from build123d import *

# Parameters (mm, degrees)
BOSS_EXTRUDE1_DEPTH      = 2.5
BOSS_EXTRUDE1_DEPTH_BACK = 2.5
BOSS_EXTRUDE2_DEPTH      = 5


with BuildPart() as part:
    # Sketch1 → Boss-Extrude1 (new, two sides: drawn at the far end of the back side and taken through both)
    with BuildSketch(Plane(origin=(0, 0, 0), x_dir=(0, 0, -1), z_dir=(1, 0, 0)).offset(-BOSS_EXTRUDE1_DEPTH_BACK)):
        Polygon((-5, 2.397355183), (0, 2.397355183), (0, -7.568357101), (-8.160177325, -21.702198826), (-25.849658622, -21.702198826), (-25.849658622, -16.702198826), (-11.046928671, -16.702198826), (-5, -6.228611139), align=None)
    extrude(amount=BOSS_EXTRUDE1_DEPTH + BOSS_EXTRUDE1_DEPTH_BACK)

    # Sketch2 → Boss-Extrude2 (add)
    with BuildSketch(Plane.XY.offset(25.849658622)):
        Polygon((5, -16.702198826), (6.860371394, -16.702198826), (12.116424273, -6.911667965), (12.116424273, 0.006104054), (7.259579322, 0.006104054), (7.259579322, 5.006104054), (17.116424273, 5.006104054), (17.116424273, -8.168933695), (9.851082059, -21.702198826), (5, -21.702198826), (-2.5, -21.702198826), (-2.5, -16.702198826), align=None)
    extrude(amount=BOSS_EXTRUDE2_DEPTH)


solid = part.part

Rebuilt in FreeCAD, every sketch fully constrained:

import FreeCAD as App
import Part
import Sketcher

V = App.Vector
Q = App.Units.Quantity

doc = App.newDocument("Part")
body = doc.addObject("PartDesign::Body", "Body")

sketch1 = body.newObject("Sketcher::SketchObject", "Sketch")
sketch1.AttachmentSupport = (doc.getObject("YZ_Plane"), [""])
sketch1.MapMode = "FlatFace"
sketch1.addGeometry([
    Part.LineSegment(V(2.397355, 0, 0), V(2.397355, 5, 0)),
    Part.LineSegment(V(2.397355, 5, 0), V(-6.228611, 5, 0)),
    Part.LineSegment(V(-6.228611, 5, 0), V(-16.702199, 11.046929, 0)),
    Part.LineSegment(V(-16.702199, 11.046929, 0), V(-16.702199, 25.849659, 0)),
    Part.LineSegment(V(-16.702199, 25.849659, 0), V(-21.702199, 25.849659, 0)),
    Part.LineSegment(V(-21.702199, 25.849659, 0), V(-21.702199, 8.160177, 0)),
    Part.LineSegment(V(-21.702199, 8.160177, 0), V(-7.568357, 0, 0)),
    Part.LineSegment(V(-7.568357, 0, 0), V(2.397355, 0, 0)),
], False)
sketch1.addConstraint([
    Sketcher.Constraint("Coincident", 0, 2, 1, 1),
    Sketcher.Constraint("Coincident", 1, 2, 2, 1),
    Sketcher.Constraint("Coincident", 2, 2, 3, 1),
    Sketcher.Constraint("Coincident", 3, 2, 4, 1),
    Sketcher.Constraint("Coincident", 4, 2, 5, 1),
    Sketcher.Constraint("Coincident", 5, 2, 6, 1),
    Sketcher.Constraint("Coincident", 6, 2, 7, 1),
    Sketcher.Constraint("Coincident", 7, 2, 0, 1),
    Sketcher.Constraint("Vertical", 0),
    Sketcher.Constraint("Horizontal", 1),
    Sketcher.Constraint("Vertical", 3),
    Sketcher.Constraint("Horizontal", 4),
    Sketcher.Constraint("Vertical", 5),
    Sketcher.Constraint("Horizontal", 7),
    Sketcher.Constraint("PointOnObject", 6, 2, -1),
    Sketcher.Constraint("Parallel", 2, 6),
    Sketcher.Constraint("Equal", 4, 0),
    Sketcher.Constraint("DistanceX", 4, 2, 4, 1, 5.0),
    Sketcher.Constraint("Angle", 2, Q("150 deg")),
    Sketcher.Constraint("DistanceY", 3, 1, 3, 2, 14.80273),
    Sketcher.Constraint("DistanceY", 5, 2, 5, 1, 17.689481),
    Sketcher.Constraint("DistanceX", 2, 2, -1, 1, 16.702199),
    Sketcher.Constraint("DistanceX", 1, 2, 1, 1, 8.625966),
    Sketcher.Constraint("DistanceX", 1, 2, -1, 1, 6.228611),
])
pad1 = body.newObject("PartDesign::Pad", "Pad")
pad1.Profile = sketch1
pad1.Type = "TwoLengths"
pad1.Length = 2.5
pad1.Length2 = 2.5

sketch2 = body.newObject("Sketcher::SketchObject", "Sketch001")
sketch2.AttachmentSupport = (doc.getObject("XY_Plane"), [""])
sketch2.MapMode = "FlatFace"
sketch2.AttachmentOffset = App.Placement(V(0, 0, 25.849659), App.Rotation())
sketch2.addGeometry([
    Part.LineSegment(V(6.860371, -16.702199, 0), V(-2.5, -16.702199, 0)),
    Part.LineSegment(V(-2.5, -16.702199, 0), V(-2.5, -21.702199, 0)),
    Part.LineSegment(V(-2.5, -21.702199, 0), V(9.851082, -21.702199, 0)),
    Part.LineSegment(V(9.851082, -21.702199, 0), V(17.116424, -8.168934, 0)),
    Part.LineSegment(V(17.116424, -8.168934, 0), V(17.116424, 5.006104, 0)),
    Part.LineSegment(V(17.116424, 5.006104, 0), V(7.259579, 5.006104, 0)),
    Part.LineSegment(V(7.259579, 5.006104, 0), V(7.259579, 0.006104, 0)),
    Part.LineSegment(V(7.259579, 0.006104, 0), V(12.116424, 0.006104, 0)),
    Part.LineSegment(V(12.116424, 0.006104, 0), V(12.116424, -6.911668, 0)),
    Part.LineSegment(V(12.116424, -6.911668, 0), V(6.860371, -16.702199, 0)),
], False)
sketch2.addConstraint([
    Sketcher.Constraint("Coincident", 0, 2, 1, 1),
    Sketcher.Constraint("Coincident", 1, 2, 2, 1),
    Sketcher.Constraint("Coincident", 2, 2, 3, 1),
    Sketcher.Constraint("Coincident", 3, 2, 4, 1),
    Sketcher.Constraint("Coincident", 4, 2, 5, 1),
    Sketcher.Constraint("Coincident", 5, 2, 6, 1),
    Sketcher.Constraint("Coincident", 6, 2, 7, 1),
    Sketcher.Constraint("Coincident", 7, 2, 8, 1),
    Sketcher.Constraint("Coincident", 8, 2, 9, 1),
    Sketcher.Constraint("Coincident", 9, 2, 0, 1),
    Sketcher.Constraint("Horizontal", 0),
    Sketcher.Constraint("Vertical", 1),
    Sketcher.Constraint("Horizontal", 2),
    Sketcher.Constraint("Vertical", 4),
    Sketcher.Constraint("Horizontal", 5),
    Sketcher.Constraint("Vertical", 6),
    Sketcher.Constraint("Horizontal", 7),
    Sketcher.Constraint("Vertical", 8),
    Sketcher.Constraint("Parallel", 3, 9),
    Sketcher.Constraint("Equal", 1, 6),
    Sketcher.Constraint("DistanceY", 1, 2, 1, 1, 5.0),
    Sketcher.Constraint("DistanceX", 7, 2, 4, 2, 5.0),
    Sketcher.Constraint("DistanceX", 0, 2, -1, 1, 2.5),
    Sketcher.Constraint("DistanceX", 0, 2, 0, 1, 9.360371),
    Sketcher.Constraint("DistanceY", 0, 2, -1, 1, 16.702199),
    Sketcher.Constraint("Distance", 3, 15.360158),
    Sketcher.Constraint("Distance", 9, 11.112182),
    Sketcher.Constraint("DistanceX", 2, 1, 2, 2, 12.351082),
    Sketcher.Constraint("DistanceX", 5, 2, 5, 1, 9.856845),
    Sketcher.Constraint("DistanceY", 4, 1, 4, 2, 13.175038),
])
pad2 = body.newObject("PartDesign::Pad", "Pad001")
pad2.Profile = sketch2
pad2.Length = 5

doc.recompute()
